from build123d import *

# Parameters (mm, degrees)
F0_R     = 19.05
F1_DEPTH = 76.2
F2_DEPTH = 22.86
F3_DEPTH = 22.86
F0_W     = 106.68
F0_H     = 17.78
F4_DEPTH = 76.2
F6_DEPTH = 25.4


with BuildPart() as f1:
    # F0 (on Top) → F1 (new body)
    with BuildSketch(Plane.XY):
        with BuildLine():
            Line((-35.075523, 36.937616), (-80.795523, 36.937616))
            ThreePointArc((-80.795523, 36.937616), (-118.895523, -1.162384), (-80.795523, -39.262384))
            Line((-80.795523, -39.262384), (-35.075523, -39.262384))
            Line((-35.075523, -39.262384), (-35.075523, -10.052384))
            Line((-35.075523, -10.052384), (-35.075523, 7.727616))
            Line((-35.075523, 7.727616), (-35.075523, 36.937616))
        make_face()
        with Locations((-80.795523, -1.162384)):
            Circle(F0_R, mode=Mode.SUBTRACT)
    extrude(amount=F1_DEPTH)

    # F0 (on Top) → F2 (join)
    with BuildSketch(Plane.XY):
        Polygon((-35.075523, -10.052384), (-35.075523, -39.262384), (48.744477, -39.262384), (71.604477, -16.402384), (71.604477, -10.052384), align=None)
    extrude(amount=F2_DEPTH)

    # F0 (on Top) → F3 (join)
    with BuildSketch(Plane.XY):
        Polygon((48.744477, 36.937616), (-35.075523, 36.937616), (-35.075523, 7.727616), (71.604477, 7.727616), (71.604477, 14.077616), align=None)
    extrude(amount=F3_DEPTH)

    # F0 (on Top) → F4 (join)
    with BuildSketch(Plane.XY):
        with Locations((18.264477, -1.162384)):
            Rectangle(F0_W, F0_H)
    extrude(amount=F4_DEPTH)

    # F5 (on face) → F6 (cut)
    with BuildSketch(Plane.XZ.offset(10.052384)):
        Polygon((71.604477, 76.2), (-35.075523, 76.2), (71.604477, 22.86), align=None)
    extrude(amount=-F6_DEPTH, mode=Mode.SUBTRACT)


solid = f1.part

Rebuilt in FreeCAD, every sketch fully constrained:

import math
import FreeCAD as App
import Part
import Sketcher

V = App.Vector
Q = App.Units.Quantity

doc = App.newDocument("Part")
body = doc.addObject("PartDesign::Body", "Body")

# Sketch on XY plane
sketch1 = doc.addObject("Sketcher::SketchObject", "Sketch")
body.addObject(sketch1)
sketch1.AttachmentSupport = (doc.XY_Plane, [""])
sketch1.MapMode = "FlatFace"
sketch1.addGeometry(Part.LineSegment(V(-35, 37, 0), V(-81, 37, 0)), False)
sketch1.addGeometry(Part.ArcOfCircle(Part.Circle(V(-81, -1, 0), V(0, 0, 1), 38), math.radians(90), math.radians(270)), False)
sketch1.addGeometry(Part.LineSegment(V(-81, -39, 0), V(-35, -39, 0)), False)
sketch1.addGeometry(Part.LineSegment(V(-35, -39, 0), V(-35, 37, 0)), False)
sketch1.addGeometry(Part.Circle(V(-81, -1, 0), V(0, 0, 1), 19), False)
sketch1.addConstraint(Sketcher.Constraint("Tangent", 0, 2, 1, 1))
sketch1.addConstraint(Sketcher.Constraint("Tangent", 1, 2, 2, 1))
sketch1.addConstraint(Sketcher.Constraint("Coincident", 2, 2, 3, 1))
sketch1.addConstraint(Sketcher.Constraint("Coincident", 3, 2, 0, 1))
sketch1.addConstraint(Sketcher.Constraint("Horizontal", 0))
sketch1.addConstraint(Sketcher.Constraint("Horizontal", 2))
sketch1.addConstraint(Sketcher.Constraint("Vertical", 3))
sketch1.addConstraint(Sketcher.Constraint("Coincident", 4, 3, 1, 3))
sketch1.addConstraint(Sketcher.Constraint("Diameter", 4, Q("1.5 in")))
sketch1.addConstraint(Sketcher.Constraint("Radius", 1, Q("1.5 in")))
sketch1.addConstraint(Sketcher.Constraint("DistanceX", 0, 2, 0, 1, Q("1.8 in")))
sketch1.addConstraint(Sketcher.Constraint("DistanceX", 1, 3, -1, 1, Q("80.795523 mm")))
sketch1.addConstraint(Sketcher.Constraint("DistanceY", 1, 3, -1, 1, Q("1.162384 mm")))
pad1 = doc.addObject("PartDesign::Pad", "Pad")
body.addObject(pad1)
pad1.Profile = sketch1
pad1.Length = Q("3 in")

# Sketch on XY plane
sketch2 = doc.addObject("Sketcher::SketchObject", "Sketch001")
body.addObject(sketch2)
sketch2.AttachmentSupport = (doc.XY_Plane, [""])
sketch2.MapMode = "FlatFace"
sketch2.addGeometry(Part.LineSegment(V(-35, -10, 0), V(-35, -39, 0)), False)
sketch2.addGeometry(Part.LineSegment(V(-35, -39, 0), V(49, -39, 0)), False)
sketch2.addGeometry(Part.LineSegment(V(49, -39, 0), V(72, -16, 0)), False)
sketch2.addGeometry(Part.LineSegment(V(72, -16, 0), V(72, -10, 0)), False)
sketch2.addGeometry(Part.LineSegment(V(72, -10, 0), V(-35, -10, 0)), False)
sketch2.addConstraint(Sketcher.Constraint("Coincident", 0, 2, 1, 1))
sketch2.addConstraint(Sketcher.Constraint("Coincident", 1, 2, 2, 1))
sketch2.addConstraint(Sketcher.Constraint("Coincident", 2, 2, 3, 1))
sketch2.addConstraint(Sketcher.Constraint("Coincident", 3, 2, 4, 1))
sketch2.addConstraint(Sketcher.Constraint("Coincident", 4, 2, 0, 1))
sketch2.addConstraint(Sketcher.Constraint("Vertical", 0))
sketch2.addConstraint(Sketcher.Constraint("Horizontal", 1))
sketch2.addConstraint(Sketcher.Constraint("Vertical", 3))
sketch2.addConstraint(Sketcher.Constraint("Horizontal", 4))
sketch2.addConstraint(Sketcher.Constraint("DistanceX", 1, 1, 1, 2, Q("3.3 in")))
sketch2.addConstraint(Sketcher.Constraint("DistanceX", 4, 2, 4, 1, Q("4.2 in")))
sketch2.addConstraint(Sketcher.Constraint("Angle", 2, Q("45 deg")))
sketch2.addConstraint(Sketcher.Constraint("DistanceY", 0, 2, 0, 1, Q("1.15 in")))
sketch2.addConstraint(Sketcher.Constraint("DistanceX", 0, 2, -1, 1, Q("35.075523 mm")))
sketch2.addConstraint(Sketcher.Constraint("DistanceY", 0, 2, -1, 1, Q("39.262384 mm")))
pad2 = doc.addObject("PartDesign::Pad", "Pad001")
body.addObject(pad2)
pad2.Profile = sketch2
pad2.Length = Q("0.9 in")

# Sketch on XY plane
sketch3 = doc.addObject("Sketcher::SketchObject", "Sketch002")
body.addObject(sketch3)
sketch3.AttachmentSupport = (doc.XY_Plane, [""])
sketch3.MapMode = "FlatFace"
sketch3.addGeometry(Part.LineSegment(V(49, 37, 0), V(-35, 37, 0)), False)
sketch3.addGeometry(Part.LineSegment(V(-35, 37, 0), V(-35, 8, 0)), False)
sketch3.addGeometry(Part.LineSegment(V(-35, 8, 0), V(72, 8, 0)), False)
sketch3.addGeometry(Part.LineSegment(V(72, 8, 0), V(72, 14, 0)), False)
sketch3.addGeometry(Part.LineSegment(V(72, 14, 0), V(49, 37, 0)), False)
sketch3.addConstraint(Sketcher.Constraint("Coincident", 0, 2, 1, 1))
sketch3.addConstraint(Sketcher.Constraint("Coincident", 1, 2, 2, 1))
sketch3.addConstraint(Sketcher.Constraint("Coincident", 2, 2, 3, 1))
sketch3.addConstraint(Sketcher.Constraint("Coincident", 3, 2, 4, 1))
sketch3.addConstraint(Sketcher.Constraint("Coincident", 4, 2, 0, 1))
sketch3.addConstraint(Sketcher.Constraint("Horizontal", 0))
sketch3.addConstraint(Sketcher.Constraint("Vertical", 1))
sketch3.addConstraint(Sketcher.Constraint("Horizontal", 2))
sketch3.addConstraint(Sketcher.Constraint("Vertical", 3))
sketch3.addConstraint(Sketcher.Constraint("DistanceX", 0, 2, 0, 1, Q("3.3 in")))
sketch3.addConstraint(Sketcher.Constraint("DistanceX", 2, 1, 2, 2, Q("4.2 in")))
sketch3.addConstraint(Sketcher.Constraint("Angle", 4, Q("135 deg")))
sketch3.addConstraint(Sketcher.Constraint("DistanceY", 1, 2, 1, 1, Q("1.15 in")))
sketch3.addConstraint(Sketcher.Constraint("DistanceX", 0, 2, -1, 1, Q("35.075523 mm")))
sketch3.addConstraint(Sketcher.Constraint("DistanceY", -1, 1, 0, 2, Q("36.937616 mm")))
pad3 = doc.addObject("PartDesign::Pad", "Pad002")
body.addObject(pad3)
pad3.Profile = sketch3
pad3.Length = Q("0.9 in")

# Sketch on XY plane
sketch4 = doc.addObject("Sketcher::SketchObject", "Sketch003")
body.addObject(sketch4)
sketch4.AttachmentSupport = (doc.XY_Plane, [""])
sketch4.MapMode = "FlatFace"
sketch4.addGeometry(Part.LineSegment(V(-35, 8, 0), V(-35, -10, 0)), False)
sketch4.addGeometry(Part.LineSegment(V(-35, -10, 0), V(72, -10, 0)), False)
sketch4.addGeometry(Part.LineSegment(V(72, -10, 0), V(72, 8, 0)), False)
sketch4.addGeometry(Part.LineSegment(V(72, 8, 0), V(-35, 8, 0)), False)
sketch4.addConstraint(Sketcher.Constraint("Coincident", 0, 2, 1, 1))
sketch4.addConstraint(Sketcher.Constraint("Coincident", 1, 2, 2, 1))
sketch4.addConstraint(Sketcher.Constraint("Coincident", 2, 2, 3, 1))
sketch4.addConstraint(Sketcher.Constraint("Coincident", 3, 2, 0, 1))
sketch4.addConstraint(Sketcher.Constraint("Vertical", 0))
sketch4.addConstraint(Sketcher.Constraint("Horizontal", 1))
sketch4.addConstraint(Sketcher.Constraint("Vertical", 2))
sketch4.addConstraint(Sketcher.Constraint("Horizontal", 3))
sketch4.addConstraint(Sketcher.Constraint("DistanceX", 1, 1, 1, 2, Q("4.2 in")))
sketch4.addConstraint(Sketcher.Constraint("DistanceY", 0, 2, 0, 1, Q("0.7 in")))
sketch4.addConstraint(Sketcher.Constraint("DistanceX", 0, 2, -1, 1, Q("35.075523 mm")))
sketch4.addConstraint(Sketcher.Constraint("DistanceY", 0, 2, -1, 1, Q("10.052384 mm")))
pad4 = doc.addObject("PartDesign::Pad", "Pad003")
body.addObject(pad4)
pad4.Profile = sketch4
pad4.Length = Q("3 in")

# Sketch on XZ plane
sketch5 = doc.addObject("Sketcher::SketchObject", "Sketch004")
body.addObject(sketch5)
sketch5.AttachmentSupport = (doc.XZ_Plane, [""])
sketch5.MapMode = "FlatFace"
sketch5.AttachmentOffset = App.Placement(V(0, 0, 10.052384), App.Rotation())
sketch5.addGeometry(Part.LineSegment(V(72, 76, 0), V(-35, 76, 0)), False)
sketch5.addGeometry(Part.LineSegment(V(-35, 76, 0), V(72, 23, 0)), False)
sketch5.addGeometry(Part.LineSegment(V(72, 23, 0), V(72, 76, 0)), False)
sketch5.addConstraint(Sketcher.Constraint("Coincident", 0, 2, 1, 1))
sketch5.addConstraint(Sketcher.Constraint("Coincident", 1, 2, 2, 1))
sketch5.addConstraint(Sketcher.Constraint("Coincident", 2, 2, 0, 1))
sketch5.addConstraint(Sketcher.Constraint("Horizontal", 0))
sketch5.addConstraint(Sketcher.Constraint("Vertical", 2))
sketch5.addConstraint(Sketcher.Constraint("DistanceX", 0, 2, 0, 1, Q("4.2 in")))
sketch5.addConstraint(Sketcher.Constraint("DistanceY", 2, 1, 2, 2, Q("2.1 in")))
sketch5.addConstraint(Sketcher.Constraint("DistanceY", -1, 1, 0, 2, Q("3 in")))
sketch5.addConstraint(Sketcher.Constraint("DistanceX", 0, 2, -1, 1, Q("35.075523 mm")))
pocket1 = doc.addObject("PartDesign::Pocket", "Pocket")
body.addObject(pocket1)
pocket1.Profile = sketch5
pocket1.Length = Q("1 in")

doc.recompute()
